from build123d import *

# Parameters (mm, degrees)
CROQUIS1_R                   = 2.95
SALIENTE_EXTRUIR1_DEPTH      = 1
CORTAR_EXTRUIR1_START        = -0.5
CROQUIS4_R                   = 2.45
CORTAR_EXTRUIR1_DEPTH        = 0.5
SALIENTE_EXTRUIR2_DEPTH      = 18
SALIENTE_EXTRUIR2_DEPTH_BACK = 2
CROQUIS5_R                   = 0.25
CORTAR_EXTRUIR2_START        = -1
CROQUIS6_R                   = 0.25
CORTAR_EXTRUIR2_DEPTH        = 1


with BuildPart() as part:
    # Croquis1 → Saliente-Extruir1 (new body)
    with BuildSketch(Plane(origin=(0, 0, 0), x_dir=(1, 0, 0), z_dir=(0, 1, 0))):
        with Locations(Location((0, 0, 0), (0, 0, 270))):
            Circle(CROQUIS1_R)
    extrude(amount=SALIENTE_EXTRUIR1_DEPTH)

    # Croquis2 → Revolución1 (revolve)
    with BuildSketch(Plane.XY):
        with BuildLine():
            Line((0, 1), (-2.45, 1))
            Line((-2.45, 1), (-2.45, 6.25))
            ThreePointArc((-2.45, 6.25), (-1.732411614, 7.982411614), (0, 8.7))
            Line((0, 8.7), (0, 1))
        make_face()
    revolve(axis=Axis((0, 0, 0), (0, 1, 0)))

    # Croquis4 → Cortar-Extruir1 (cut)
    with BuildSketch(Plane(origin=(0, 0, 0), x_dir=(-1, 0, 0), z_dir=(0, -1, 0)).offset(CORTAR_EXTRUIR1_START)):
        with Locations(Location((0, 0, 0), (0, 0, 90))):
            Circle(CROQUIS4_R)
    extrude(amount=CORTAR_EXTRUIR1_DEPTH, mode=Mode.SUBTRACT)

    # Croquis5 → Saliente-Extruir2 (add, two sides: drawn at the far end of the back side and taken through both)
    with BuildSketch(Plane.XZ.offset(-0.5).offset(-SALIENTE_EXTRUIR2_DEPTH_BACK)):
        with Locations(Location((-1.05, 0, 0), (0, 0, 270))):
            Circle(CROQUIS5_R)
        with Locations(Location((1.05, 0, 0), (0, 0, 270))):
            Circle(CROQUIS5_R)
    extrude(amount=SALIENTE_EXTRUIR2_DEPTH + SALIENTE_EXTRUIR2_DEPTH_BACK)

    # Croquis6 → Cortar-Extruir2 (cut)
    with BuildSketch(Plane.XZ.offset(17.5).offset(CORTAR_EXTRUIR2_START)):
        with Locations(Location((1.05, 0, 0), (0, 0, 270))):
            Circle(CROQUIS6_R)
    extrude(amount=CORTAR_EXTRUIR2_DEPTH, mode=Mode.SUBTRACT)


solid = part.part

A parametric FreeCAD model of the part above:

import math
import FreeCAD as App
import Part
import Sketcher

V = App.Vector

doc = App.newDocument("Part")
body = doc.addObject("PartDesign::Body", "Body")

sketch1 = body.newObject("Sketcher::SketchObject", "Sketch")
sketch1.AttachmentSupport = (doc.getObject("XZ_Plane"), [""])
sketch1.MapMode = "FlatFace"
sketch1.addGeometry(Part.Circle(V(0, 0, 0), V(0, 0, 1), 2.95), False)
sketch1.addConstraint([
    Sketcher.Constraint("Coincident", 0, 3, -1, 1),
    Sketcher.Constraint("Diameter", 0, 5.9),
])
pad1 = body.newObject("PartDesign::Pad", "Pad")
pad1.Profile = sketch1
pad1.Length = 1
pad1.Reversed = True

sketch2 = body.newObject("Sketcher::SketchObject", "Sketch001")
sketch2.AttachmentSupport = (doc.getObject("XY_Plane"), [""])
sketch2.MapMode = "FlatFace"
sketch2.addGeometry([
    Part.LineSegment(V(-2.45, 1, 0), V(0, 1, 0)),
    Part.LineSegment(V(0, 1, 0), V(0, 8.7, 0)),
    Part.ArcOfCircle(Part.Circle(V(0, 6.25, 0), V(0, 0, 1), 2.45), math.radians(90), math.radians(180)),
    Part.LineSegment(V(-2.45, 6.25, 0), V(-2.45, 1, 0)),
], False)
sketch2.addConstraint([
    Sketcher.Constraint("Coincident", 0, 2, 1, 1),
    Sketcher.Constraint("Coincident", 1, 2, 2, 1),
    Sketcher.Constraint("Tangent", 2, 2, 3, 1),
    Sketcher.Constraint("Coincident", 3, 2, 0, 1),
    Sketcher.Constraint("Horizontal", 0),
    Sketcher.Constraint("Vertical", 1),
    Sketcher.Constraint("Vertical", 3),
    Sketcher.Constraint("PointOnObject", 2, 3, -2),
    Sketcher.Constraint("PointOnObject", 0, 2, -2),
    Sketcher.Constraint("Radius", 2, 2.45),
    Sketcher.Constraint("DistanceY", 1, 1, 1, 2, 7.7),
    Sketcher.Constraint("DistanceY", -1, 1, 0, 2, 1.0),
])
revolution = body.newObject("PartDesign::Revolution", "Revolution")
revolution.Profile = sketch2
revolution.ReferenceAxis = (sketch2, ["V_Axis"])
revolution.Angle = 360

sketch3 = body.newObject("Sketcher::SketchObject", "Sketch002")
sketch3.AttachmentSupport = (doc.getObject("XZ_Plane"), [""])
sketch3.MapMode = "FlatFace"
sketch3.AttachmentOffset = App.Placement(V(0, 0, -0.5), App.Rotation())
sketch3.addGeometry(Part.Circle(V(0, 0, 0), V(0, 0, 1), 2.45), False)
sketch3.addConstraint([
    Sketcher.Constraint("Coincident", 0, 3, -1, 1),
    Sketcher.Constraint("Diameter", 0, 4.9),
])
pocket1 = body.newObject("PartDesign::Pocket", "Pocket")
pocket1.Profile = sketch3
pocket1.Length = 0.5
pocket1.Reversed = True

sketch4 = body.newObject("Sketcher::SketchObject", "Sketch003")
sketch4.AttachmentSupport = (doc.getObject("XZ_Plane"), [""])
sketch4.MapMode = "FlatFace"
sketch4.AttachmentOffset = App.Placement(V(0, 0, -0.5), App.Rotation())
sketch4.addGeometry([
    Part.Circle(V(-1.05, 0, 0), V(0, 0, 1), 0.25),
    Part.Circle(V(1.05, 0, 0), V(0, 0, 1), 0.25),
], False)
sketch4.addConstraint([
    Sketcher.Constraint("Equal", 0, 1),
    Sketcher.Constraint("Symmetric", 0, 3, 1, 3, -1, 1),
    Sketcher.Constraint("PointOnObject", 0, 3, -1),
    Sketcher.Constraint("Diameter", 0, 0.5),
    Sketcher.Constraint("DistanceX", 0, 3, 1, 3, 2.1),
])
pad2 = body.newObject("PartDesign::Pad", "Pad001")
pad2.Profile = sketch4
pad2.Type = "TwoLengths"
pad2.Length = 18
pad2.Length2 = 2

sketch5 = body.newObject("Sketcher::SketchObject", "Sketch004")
sketch5.AttachmentSupport = (doc.getObject("XZ_Plane"), [""])
sketch5.MapMode = "FlatFace"
sketch5.AttachmentOffset = App.Placement(V(0, 0, 16.5), App.Rotation())
sketch5.addGeometry(Part.Circle(V(1.05, 0, 0), V(0, 0, 1), 0.25), False)
sketch5.addConstraint([
    Sketcher.Constraint("PointOnObject", 0, 3, -1),
    Sketcher.Constraint("Diameter", 0, 0.5),
    Sketcher.Constraint("DistanceX", -1, 1, 0, 3, 1.05),
])
pocket2 = body.newObject("PartDesign::Pocket", "Pocket001")
pocket2.Profile = sketch5
pocket2.Length = 1
pocket2.Reversed = True

doc.recompute()
